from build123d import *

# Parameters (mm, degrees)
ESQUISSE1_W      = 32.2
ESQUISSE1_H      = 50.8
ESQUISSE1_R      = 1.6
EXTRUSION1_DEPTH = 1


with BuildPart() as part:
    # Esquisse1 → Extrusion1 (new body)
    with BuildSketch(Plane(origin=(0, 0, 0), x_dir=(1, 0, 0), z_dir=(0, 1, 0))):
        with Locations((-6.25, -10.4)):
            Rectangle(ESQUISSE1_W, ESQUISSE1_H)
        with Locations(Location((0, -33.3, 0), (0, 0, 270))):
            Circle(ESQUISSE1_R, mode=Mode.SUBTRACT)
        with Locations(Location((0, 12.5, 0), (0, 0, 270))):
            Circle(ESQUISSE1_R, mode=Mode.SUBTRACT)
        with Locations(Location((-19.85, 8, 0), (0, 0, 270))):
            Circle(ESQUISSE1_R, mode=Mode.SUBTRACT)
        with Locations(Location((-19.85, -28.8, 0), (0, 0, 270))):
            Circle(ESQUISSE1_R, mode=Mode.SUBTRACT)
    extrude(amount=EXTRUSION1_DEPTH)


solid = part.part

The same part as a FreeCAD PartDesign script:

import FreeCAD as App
import Part
import Sketcher
Q = App.Units.Quantity


def add_polygon(sketch, points):
    """Adds a closed chain of lines whose ends are joined by coincident constraints."""
    first, n = sketch.GeometryCount, len(points)
    for a, b in zip(points, points[1:] + points[:1]):
        sketch.addGeometry(Part.LineSegment(App.Vector(*a, 0), App.Vector(*b, 0)), False)
    for i in range(n):
        sketch.addConstraint(Sketcher.Constraint("Coincident", first + i, 2, first + (i + 1) % n, 1))

doc = App.newDocument("Part")
body = doc.addObject("PartDesign::Body", "Body")

# Sketch on XZ plane
sketch1 = body.newObject("Sketcher::SketchObject", "Sketch")
sketch1.AttachmentSupport = (doc.getObject("XZ_Plane"), [""])
sketch1.MapMode = "FlatFace"
add_polygon(sketch1, [(-22.4, -15), (-22.4, 35.8), (9.8, 35.8), (9.8, -15)])  # lines 0-3
sketch1.addGeometry(Part.Circle(App.Vector(-19.9, 28.8, 0), App.Vector(0, 0, 1), 1.6), False)  # 4
sketch1.addGeometry(Part.Circle(App.Vector(0, 33.3, 0), App.Vector(0, 0, 1), 1.6), False)  # 5
sketch1.addGeometry(Part.Circle(App.Vector(-19.9, -8, 0), App.Vector(0, 0, 1), 1.6), False)  # 6
sketch1.addGeometry(Part.Circle(App.Vector(0, -12.5, 0), App.Vector(0, 0, 1), 1.6), False)  # 7
sketch1.addConstraint([
    Sketcher.Constraint("Vertical", 0),
    Sketcher.Constraint("Horizontal", 1),
    Sketcher.Constraint("Vertical", 2),
    Sketcher.Constraint("Horizontal", 3),
    Sketcher.Constraint("Equal", 4, 5),
    Sketcher.Constraint("Equal", 5, 6),
    Sketcher.Constraint("Equal", 6, 7),
    Sketcher.Constraint("PointOnObject", 5, 3, -2),
    Sketcher.Constraint("PointOnObject", 7, 3, -2),
    Sketcher.Constraint("Vertical", 4, 3, 6, 3),
    Sketcher.Constraint("Diameter", 4, Q("3.2 mm")),
    Sketcher.Constraint("DistanceX", 1, 1, 1, 2, Q("32.2 mm")),
    Sketcher.Constraint("DistanceY", 0, 1, 0, 2, Q("50.8 mm")),
    Sketcher.Constraint("DistanceY", 6, 3, -1, 1, Q("8 mm")),
    Sketcher.Constraint("DistanceY", 2, 2, -1, 1, Q("15 mm")),
    Sketcher.Constraint("DistanceY", 4, 3, 0, 2, Q("7 mm")),
    Sketcher.Constraint("DistanceY", -1, 1, 5, 3, Q("33.3 mm")),
    Sketcher.Constraint("DistanceY", 7, 3, -1, 1, Q("12.5 mm")),
    Sketcher.Constraint("DistanceX", 0, 2, 4, 3, Q("2.5 mm")),
    Sketcher.Constraint("DistanceX", 4, 3, -1, 1, Q("19.85 mm")),
])
pad1 = body.newObject("PartDesign::Pad", "Pad")
pad1.Profile = sketch1
pad1.Length = 1
pad1.Reversed = True

doc.recompute()
